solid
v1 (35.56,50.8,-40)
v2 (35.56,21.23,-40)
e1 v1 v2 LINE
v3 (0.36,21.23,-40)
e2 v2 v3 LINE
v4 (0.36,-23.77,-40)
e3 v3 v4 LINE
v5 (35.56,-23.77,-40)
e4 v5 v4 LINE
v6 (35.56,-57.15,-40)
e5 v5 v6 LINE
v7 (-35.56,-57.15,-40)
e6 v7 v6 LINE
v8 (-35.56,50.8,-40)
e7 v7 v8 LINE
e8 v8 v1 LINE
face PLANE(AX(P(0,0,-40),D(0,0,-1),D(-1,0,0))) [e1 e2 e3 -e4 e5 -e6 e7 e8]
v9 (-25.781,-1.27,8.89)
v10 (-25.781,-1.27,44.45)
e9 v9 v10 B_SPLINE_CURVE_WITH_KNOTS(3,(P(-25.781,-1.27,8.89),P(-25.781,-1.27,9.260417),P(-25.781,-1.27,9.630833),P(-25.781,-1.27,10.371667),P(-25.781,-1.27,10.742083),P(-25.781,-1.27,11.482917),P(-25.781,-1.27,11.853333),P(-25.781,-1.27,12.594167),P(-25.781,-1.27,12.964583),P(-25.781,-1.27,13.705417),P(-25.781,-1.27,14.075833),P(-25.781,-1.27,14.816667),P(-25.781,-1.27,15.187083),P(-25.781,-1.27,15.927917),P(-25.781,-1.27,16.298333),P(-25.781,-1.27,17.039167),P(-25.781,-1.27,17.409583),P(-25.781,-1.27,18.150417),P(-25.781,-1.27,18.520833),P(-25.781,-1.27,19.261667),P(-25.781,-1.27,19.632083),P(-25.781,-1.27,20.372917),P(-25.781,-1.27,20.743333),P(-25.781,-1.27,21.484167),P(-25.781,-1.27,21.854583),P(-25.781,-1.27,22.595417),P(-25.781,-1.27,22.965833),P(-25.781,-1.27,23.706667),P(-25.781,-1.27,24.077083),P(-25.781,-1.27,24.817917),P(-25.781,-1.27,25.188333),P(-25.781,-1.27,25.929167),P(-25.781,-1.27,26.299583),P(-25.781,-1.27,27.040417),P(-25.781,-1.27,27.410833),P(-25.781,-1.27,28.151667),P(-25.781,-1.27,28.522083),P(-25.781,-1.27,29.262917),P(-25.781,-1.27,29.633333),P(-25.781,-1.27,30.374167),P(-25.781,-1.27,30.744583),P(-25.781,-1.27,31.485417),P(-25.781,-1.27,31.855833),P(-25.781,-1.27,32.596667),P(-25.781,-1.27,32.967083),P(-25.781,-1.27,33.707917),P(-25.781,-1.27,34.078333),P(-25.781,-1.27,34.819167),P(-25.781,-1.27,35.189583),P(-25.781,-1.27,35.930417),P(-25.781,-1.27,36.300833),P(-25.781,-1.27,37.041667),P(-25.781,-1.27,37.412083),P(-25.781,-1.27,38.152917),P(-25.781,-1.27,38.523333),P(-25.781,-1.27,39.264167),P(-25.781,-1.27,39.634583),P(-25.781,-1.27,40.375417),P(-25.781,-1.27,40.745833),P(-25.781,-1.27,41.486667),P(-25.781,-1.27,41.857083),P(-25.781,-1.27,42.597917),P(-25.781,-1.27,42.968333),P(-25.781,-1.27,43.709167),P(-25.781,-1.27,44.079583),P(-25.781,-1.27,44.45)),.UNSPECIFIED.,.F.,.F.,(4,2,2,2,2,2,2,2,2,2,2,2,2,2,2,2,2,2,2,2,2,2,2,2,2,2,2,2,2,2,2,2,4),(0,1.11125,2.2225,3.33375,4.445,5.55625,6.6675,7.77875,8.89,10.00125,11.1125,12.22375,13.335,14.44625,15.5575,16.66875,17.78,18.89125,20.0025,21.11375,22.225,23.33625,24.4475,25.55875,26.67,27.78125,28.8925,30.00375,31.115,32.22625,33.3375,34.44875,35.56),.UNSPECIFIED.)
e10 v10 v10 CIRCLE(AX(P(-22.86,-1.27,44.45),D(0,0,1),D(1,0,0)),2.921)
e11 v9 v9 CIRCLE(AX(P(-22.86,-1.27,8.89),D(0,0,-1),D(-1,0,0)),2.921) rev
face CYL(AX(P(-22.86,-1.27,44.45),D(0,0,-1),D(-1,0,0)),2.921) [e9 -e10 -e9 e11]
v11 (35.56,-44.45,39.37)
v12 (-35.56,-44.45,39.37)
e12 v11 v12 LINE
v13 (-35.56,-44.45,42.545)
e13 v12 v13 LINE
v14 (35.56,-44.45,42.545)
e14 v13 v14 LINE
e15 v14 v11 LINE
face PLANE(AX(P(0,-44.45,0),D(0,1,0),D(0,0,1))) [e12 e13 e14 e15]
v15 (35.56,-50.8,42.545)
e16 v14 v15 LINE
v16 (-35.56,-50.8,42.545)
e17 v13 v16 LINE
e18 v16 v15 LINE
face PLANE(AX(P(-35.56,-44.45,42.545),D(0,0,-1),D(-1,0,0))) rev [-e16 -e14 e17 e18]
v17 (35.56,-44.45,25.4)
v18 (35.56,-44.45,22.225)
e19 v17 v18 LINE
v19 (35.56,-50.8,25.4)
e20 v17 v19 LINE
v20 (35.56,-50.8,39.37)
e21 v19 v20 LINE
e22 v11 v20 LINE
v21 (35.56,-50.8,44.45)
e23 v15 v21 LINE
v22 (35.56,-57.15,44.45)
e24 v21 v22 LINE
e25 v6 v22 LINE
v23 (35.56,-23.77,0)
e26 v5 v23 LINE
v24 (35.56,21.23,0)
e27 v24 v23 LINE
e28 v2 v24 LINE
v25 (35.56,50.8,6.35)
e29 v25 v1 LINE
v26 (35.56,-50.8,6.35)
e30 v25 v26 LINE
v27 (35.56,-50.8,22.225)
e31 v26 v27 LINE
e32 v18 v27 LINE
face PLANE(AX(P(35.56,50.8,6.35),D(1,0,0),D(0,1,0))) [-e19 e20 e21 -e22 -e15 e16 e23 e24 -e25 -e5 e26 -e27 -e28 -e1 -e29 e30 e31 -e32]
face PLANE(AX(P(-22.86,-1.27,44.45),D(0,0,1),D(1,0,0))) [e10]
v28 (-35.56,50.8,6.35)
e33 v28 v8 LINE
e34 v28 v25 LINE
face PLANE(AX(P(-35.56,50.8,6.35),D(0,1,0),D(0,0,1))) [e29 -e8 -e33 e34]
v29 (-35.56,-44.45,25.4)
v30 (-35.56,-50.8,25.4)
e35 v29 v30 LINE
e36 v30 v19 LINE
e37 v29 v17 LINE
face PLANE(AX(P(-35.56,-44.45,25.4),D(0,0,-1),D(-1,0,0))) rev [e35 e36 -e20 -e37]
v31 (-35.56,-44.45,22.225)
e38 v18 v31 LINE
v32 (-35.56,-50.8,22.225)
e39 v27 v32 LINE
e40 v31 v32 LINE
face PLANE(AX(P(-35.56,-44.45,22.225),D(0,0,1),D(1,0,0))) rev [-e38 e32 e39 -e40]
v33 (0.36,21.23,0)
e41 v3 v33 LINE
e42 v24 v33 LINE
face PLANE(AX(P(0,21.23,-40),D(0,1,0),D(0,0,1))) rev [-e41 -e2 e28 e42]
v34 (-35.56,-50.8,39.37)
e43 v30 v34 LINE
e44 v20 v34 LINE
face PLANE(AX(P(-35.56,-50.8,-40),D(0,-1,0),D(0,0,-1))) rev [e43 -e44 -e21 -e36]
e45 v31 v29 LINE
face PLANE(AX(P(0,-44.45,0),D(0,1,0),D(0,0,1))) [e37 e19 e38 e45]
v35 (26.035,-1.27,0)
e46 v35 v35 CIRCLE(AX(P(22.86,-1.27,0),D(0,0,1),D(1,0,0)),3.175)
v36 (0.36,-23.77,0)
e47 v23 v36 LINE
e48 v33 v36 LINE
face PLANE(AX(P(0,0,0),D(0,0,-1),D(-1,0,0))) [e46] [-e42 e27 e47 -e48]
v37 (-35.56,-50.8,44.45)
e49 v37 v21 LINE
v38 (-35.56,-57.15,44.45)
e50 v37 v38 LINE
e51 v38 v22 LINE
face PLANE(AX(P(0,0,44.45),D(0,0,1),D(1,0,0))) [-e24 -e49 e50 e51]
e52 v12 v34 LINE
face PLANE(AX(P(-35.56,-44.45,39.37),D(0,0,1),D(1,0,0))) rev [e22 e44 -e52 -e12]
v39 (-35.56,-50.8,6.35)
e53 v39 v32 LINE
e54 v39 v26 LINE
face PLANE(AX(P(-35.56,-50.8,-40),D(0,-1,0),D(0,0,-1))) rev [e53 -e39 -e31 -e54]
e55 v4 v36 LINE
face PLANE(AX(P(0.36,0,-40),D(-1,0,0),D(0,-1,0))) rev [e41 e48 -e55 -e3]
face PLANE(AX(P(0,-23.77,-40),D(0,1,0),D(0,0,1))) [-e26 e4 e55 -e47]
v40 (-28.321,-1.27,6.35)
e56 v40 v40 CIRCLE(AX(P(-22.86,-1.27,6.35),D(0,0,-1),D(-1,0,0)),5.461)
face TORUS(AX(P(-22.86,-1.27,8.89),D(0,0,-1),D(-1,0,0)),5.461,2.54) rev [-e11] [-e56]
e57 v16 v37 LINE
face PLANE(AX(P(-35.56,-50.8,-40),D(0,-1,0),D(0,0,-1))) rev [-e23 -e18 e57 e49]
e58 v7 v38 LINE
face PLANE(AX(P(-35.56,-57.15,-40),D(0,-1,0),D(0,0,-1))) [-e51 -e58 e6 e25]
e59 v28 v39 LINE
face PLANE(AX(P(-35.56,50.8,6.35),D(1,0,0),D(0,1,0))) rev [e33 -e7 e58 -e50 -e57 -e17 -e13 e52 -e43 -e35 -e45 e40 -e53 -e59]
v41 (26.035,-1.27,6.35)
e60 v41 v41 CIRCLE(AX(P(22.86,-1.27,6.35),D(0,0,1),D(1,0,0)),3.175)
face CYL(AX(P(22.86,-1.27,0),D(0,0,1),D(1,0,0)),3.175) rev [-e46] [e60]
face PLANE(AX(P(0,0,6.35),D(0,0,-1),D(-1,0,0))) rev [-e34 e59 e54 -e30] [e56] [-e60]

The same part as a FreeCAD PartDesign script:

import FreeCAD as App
import Part
import Sketcher
Q = App.Units.Quantity


def edges_at(feature, points):
    """Names of the edges that pass closest to the given points."""
    edges = feature.Shape.Edges
    near = lambda p: min(range(len(edges)), key=lambda i: edges[i].distToShape(Part.Vertex(*p))[0])
    return sorted({f"Edge{near(p) + 1}" for p in points})


def add_polygon(sketch, points):
    """Adds a closed chain of lines whose ends are joined by coincident constraints."""
    first, n = sketch.GeometryCount, len(points)
    for a, b in zip(points, points[1:] + points[:1]):
        sketch.addGeometry(Part.LineSegment(App.Vector(*a, 0), App.Vector(*b, 0)), False)
    for i in range(n):
        sketch.addConstraint(Sketcher.Constraint("Coincident", first + i, 2, first + (i + 1) % n, 1))

doc = App.newDocument("Part")
body = doc.addObject("PartDesign::Body", "Body")

sketch1 = doc.addObject("Sketcher::SketchObject", "Sketch")
body.addObject(sketch1)
sketch1.AttachmentSupport = (doc.XY_Plane, [""])
sketch1.MapMode = "FlatFace"
add_polygon(sketch1, [(-36, 51), (-36, -51), (36, -51), (36, 51)])
sketch1.addConstraint([
    Sketcher.Constraint("Vertical", 0),
    Sketcher.Constraint("Horizontal", 1),
    Sketcher.Constraint("Vertical", 2),
    Sketcher.Constraint("Horizontal", 3),
    Sketcher.Constraint("Symmetric", 0, 2, 2, 2, -1, 1),
    Sketcher.Constraint("DistanceY", 0, 2, 0, 1, Q("4 in")),
    Sketcher.Constraint("DistanceX", 1, 1, 1, 2, Q("2.8 in")),
])
pad1 = doc.addObject("PartDesign::Pad", "Pad")
body.addObject(pad1)
pad1.Profile = sketch1
pad1.Length = Q("0.25 in")

sketch2 = doc.addObject("Sketcher::SketchObject", "Sketch001")
body.addObject(sketch2)
sketch2.AttachmentSupport = (doc.XY_Plane, [""])
sketch2.MapMode = "FlatFace"
sketch2.AttachmentOffset = App.Placement(App.Vector(0, 0, 0.25 * 25.4), App.Rotation())
sketch2.addGeometry(Part.Circle(App.Vector(22.9, -1.3, 0), App.Vector(0, 0, 1), 3.2), False)
sketch2.addConstraint([
    Sketcher.Constraint("Diameter", 0, Q("0.25 in")),
    Sketcher.Constraint("DistanceX", -1, 1, 0, 3, Q("0.9 in")),
    Sketcher.Constraint("DistanceY", 0, 3, -1, 1, Q("0.05 in")),
])
pocket1 = doc.addObject("PartDesign::Pocket", "Pocket")
body.addObject(pocket1)
pocket1.Profile = sketch2
pocket1.Length = Q("0.25 in")

sketch3 = doc.addObject("Sketcher::SketchObject", "Sketch002")
body.addObject(sketch3)
sketch3.AttachmentSupport = (doc.XY_Plane, [""])
sketch3.MapMode = "FlatFace"
add_polygon(sketch3, [(36, 51), (36, 21), (0, 21), (0, -24), (36, -24), (36, -51), (-36, -51), (-36, 51)])
sketch3.addConstraint([
    Sketcher.Constraint("Vertical", 0),
    Sketcher.Constraint("Horizontal", 1),
    Sketcher.Constraint("Vertical", 2),
    Sketcher.Constraint("Horizontal", 3),
    Sketcher.Constraint("Vertical", 4),
    Sketcher.Constraint("Horizontal", 5),
    Sketcher.Constraint("Vertical", 6),
    Sketcher.Constraint("Horizontal", 7),
    Sketcher.Constraint("Symmetric", 4, 2, 6, 2, -1, 1),
    Sketcher.Constraint("Vertical", 0, 2, 3, 2),
    Sketcher.Constraint("DistanceY", 6, 1, 6, 2, Q("4 in")),
    Sketcher.Constraint("DistanceX", 5, 2, 5, 1, Q("2.8 in")),
    Sketcher.Constraint("DistanceX", 1, 2, 1, 1, Q("35.2 mm")),
    Sketcher.Constraint("DistanceY", 0, 2, 0, 1, Q("29.57 mm")),
    Sketcher.Constraint("DistanceY", 2, 2, 2, 1, Q("45 mm")),
])
pad2 = doc.addObject("PartDesign::Pad", "Pad001")
body.addObject(pad2)
pad2.Profile = sketch3
pad2.Length = 40
pad2.Reversed = True

sketch4 = doc.addObject("Sketcher::SketchObject", "Sketch003")
body.addObject(sketch4)
sketch4.AttachmentSupport = (doc.XY_Plane, [""])
sketch4.MapMode = "FlatFace"
sketch4.AttachmentOffset = App.Placement(App.Vector(0, 0, 0.25 * 25.4), App.Rotation())
sketch4.addGeometry(Part.Circle(App.Vector(-22.9, -1.3, 0), App.Vector(0, 0, 1), 2.9), False)
sketch4.addConstraint([
    Sketcher.Constraint("Diameter", 0, Q("0.23 in")),
    Sketcher.Constraint("DistanceX", 0, 3, -1, 1, Q("0.9 in")),
    Sketcher.Constraint("DistanceY", 0, 3, -1, 1, Q("0.05 in")),
])
pad3 = doc.addObject("PartDesign::Pad", "Pad002")
body.addObject(pad3)
pad3.Profile = sketch4
pad3.Length = Q("1.5 in")
doc.recompute()

fillet = doc.addObject("PartDesign::Fillet", "Fillet")
body.addObject(fillet)
fillet.Base = (pad3, edges_at(pad3, [(-19.939, -1.27, 6.35)]))
fillet.Radius = Q("0.1 in")

sketch5 = doc.addObject("Sketcher::SketchObject", "Sketch004")
body.addObject(sketch5)
sketch5.AttachmentSupport = (doc.XY_Plane, [""])
sketch5.MapMode = "FlatFace"
sketch5.AttachmentOffset = App.Placement(App.Vector(0, 0, 0.25 * 25.4), App.Rotation())
add_polygon(sketch5, [(-36, -51), (-36, -57), (36, -57), (36, -51)])
sketch5.addConstraint([
    Sketcher.Constraint("Vertical", 0),
    Sketcher.Constraint("Horizontal", 1),
    Sketcher.Constraint("Vertical", 2),
    Sketcher.Constraint("Horizontal", 3),
    Sketcher.Constraint("DistanceX", 1, 1, 1, 2, Q("2.8 in")),
    Sketcher.Constraint("DistanceY", 2, 2, -1, 1, Q("2 in")),
    Sketcher.Constraint("DistanceY", 0, 2, 0, 1, Q("0.25 in")),
    Sketcher.Constraint("DistanceX", 0, 2, -1, 1, Q("1.4 in")),
])
pad4 = doc.addObject("PartDesign::Pad", "Pad003")
body.addObject(pad4)
pad4.Profile = sketch5
pad4.Type = "TwoLengths"
pad4.Length = Q("1.5 in")
pad4.Length2 = 46.35

sketch6 = doc.addObject("Sketcher::SketchObject", "Sketch005")
body.addObject(sketch6)
sketch6.AttachmentSupport = (doc.XZ_Plane, [""])
sketch6.MapMode = "FlatFace"
sketch6.AttachmentOffset = App.Placement(App.Vector(0, 0, 2 * 25.4), App.Rotation())
add_polygon(sketch6, [(-35.6, 22.2), (-35.6, 25.4), (35.6, 25.4), (35.6, 22.2)])
add_polygon(sketch6, [(-35.6, 39.4), (-35.6, 42.5), (35.6, 42.5), (35.6, 39.4)])
sketch6.addConstraint([
    Sketcher.Constraint("Vertical", 0),
    Sketcher.Constraint("Horizontal", 1),
    Sketcher.Constraint("Vertical", 2),
    Sketcher.Constraint("Horizontal", 3),
    Sketcher.Constraint("Vertical", 4),
    Sketcher.Constraint("Horizontal", 5),
    Sketcher.Constraint("Vertical", 6),
    Sketcher.Constraint("Horizontal", 7),
    Sketcher.Constraint("Vertical", 3, 2, 4, 2),
    Sketcher.Constraint("Vertical", 2, 2, 5, 2),
    Sketcher.Constraint("Equal", 2, 4),
    Sketcher.Constraint("DistanceX", 1, 1, 1, 2, Q("2.8 in")),
    Sketcher.Constraint("DistanceY", -1, 1, 0, 2, Q("1 in")),
    Sketcher.Constraint("DistanceX", 0, 2, -1, 1, Q("1.4 in")),
    Sketcher.Constraint("DistanceY", 3, 2, 4, 2, Q("0.8 in")),
    Sketcher.Constraint("DistanceY", 0, 1, 0, 2, Q("0.125 in")),
])
pad5 = doc.addObject("PartDesign::Pad", "Pad004")
body.addObject(pad5)
pad5.Profile = sketch6
pad5.Length = Q("0.25 in")
pad5.Reversed = True

doc.recompute()
